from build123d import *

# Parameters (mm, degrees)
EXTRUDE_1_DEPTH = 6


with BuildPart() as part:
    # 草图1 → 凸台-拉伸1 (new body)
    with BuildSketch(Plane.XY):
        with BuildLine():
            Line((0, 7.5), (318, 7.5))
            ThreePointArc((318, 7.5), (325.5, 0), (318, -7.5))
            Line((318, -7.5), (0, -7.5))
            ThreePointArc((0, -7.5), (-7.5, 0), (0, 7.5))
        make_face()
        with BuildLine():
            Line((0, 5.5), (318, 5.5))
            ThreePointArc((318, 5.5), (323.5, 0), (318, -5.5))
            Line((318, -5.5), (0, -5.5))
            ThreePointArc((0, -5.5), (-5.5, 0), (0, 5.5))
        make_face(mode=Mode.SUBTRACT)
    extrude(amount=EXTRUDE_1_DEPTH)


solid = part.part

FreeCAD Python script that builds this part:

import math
import FreeCAD as App
import Part
import Sketcher
Q = App.Units.Quantity

doc = App.newDocument("Part")
params = doc.addObject("Spreadsheet::Sheet", "Params")
for row, (alias, value) in enumerate([
    ("sketch1_radius", "7.5 mm"),
    ("sketch1_radius2", "5.5 mm"),
    ("sketch1_width", "318 mm"),
    ("pad1_length", "6 mm"),
], start=1):
    params.set(f"A{row}", alias)
    params.set(f"B{row}", "=" + value)
    params.setAlias(f"B{row}", alias)

body = doc.addObject("PartDesign::Body", "Body")

# Sketch on XY plane
sketch1 = doc.addObject("Sketcher::SketchObject", "Sketch")
body.addObject(sketch1)
sketch1.AttachmentSupport = (doc.XY_Plane, [""])
sketch1.MapMode = "FlatFace"
sketch1.addGeometry([
    Part.LineSegment(App.Vector(318, 8, 0), App.Vector(0, 8, 0)),  # 0
    Part.ArcOfCircle(Part.Circle(App.Vector(0, 0, 0), App.Vector(0, 0, 1), 8), math.radians(90), math.radians(270)),  # 1
    Part.LineSegment(App.Vector(0, -8, 0), App.Vector(318, -8, 0)),  # 2
    Part.ArcOfCircle(Part.Circle(App.Vector(318, 0, 0), App.Vector(0, 0, 1), 8), math.radians(-90), math.radians(90)),  # 3
    Part.LineSegment(App.Vector(0, 6, 0), App.Vector(318, 6, 0)),  # 4
    Part.ArcOfCircle(Part.Circle(App.Vector(318, 0, 0), App.Vector(0, 0, 1), 6), math.radians(-90), math.radians(90)),  # 5
    Part.LineSegment(App.Vector(318, -6, 0), App.Vector(0, -6, 0)),  # 6
    Part.ArcOfCircle(Part.Circle(App.Vector(0, 0, 0), App.Vector(0, 0, 1), 6), math.radians(90), math.radians(270)),  # 7
], False)
sketch1.addConstraint([
    Sketcher.Constraint("Tangent", 0, 2, 1, 1),
    Sketcher.Constraint("Tangent", 1, 2, 2, 1),
    Sketcher.Constraint("Tangent", 2, 2, 3, 1),
    Sketcher.Constraint("Tangent", 3, 2, 0, 1),
    Sketcher.Constraint("Tangent", 4, 2, 5, 2),
    Sketcher.Constraint("Tangent", 5, 1, 6, 1),
    Sketcher.Constraint("Tangent", 6, 2, 7, 2),
    Sketcher.Constraint("Tangent", 7, 1, 4, 1),
    Sketcher.Constraint("Horizontal", 0),
    Sketcher.Constraint("Horizontal", 2),
    Sketcher.Constraint("Horizontal", 4),
    Sketcher.Constraint("Horizontal", 6),
    Sketcher.Constraint("Coincident", 1, 3, -1, 1),
    Sketcher.Constraint("Coincident", 7, 3, -1, 1),
    Sketcher.Constraint("Vertical", 5, 3, 2, 2),
    Sketcher.Constraint("Radius", 1, Q("7.5 mm")),
    Sketcher.Constraint("Radius", 5, Q("5.5 mm")),
    Sketcher.Constraint("DistanceX", 0, 2, 0, 1, Q("318 mm")),
])
sketch1.setExpression("Constraints[15]", "Params.sketch1_radius")
sketch1.setExpression("Constraints[16]", "Params.sketch1_radius2")
sketch1.setExpression("Constraints[17]", "Params.sketch1_width")
pad1 = doc.addObject("PartDesign::Pad", "Pad")
body.addObject(pad1)
pad1.Profile = sketch1
pad1.setExpression("Length", "Params.pad1_length")

doc.recompute()
